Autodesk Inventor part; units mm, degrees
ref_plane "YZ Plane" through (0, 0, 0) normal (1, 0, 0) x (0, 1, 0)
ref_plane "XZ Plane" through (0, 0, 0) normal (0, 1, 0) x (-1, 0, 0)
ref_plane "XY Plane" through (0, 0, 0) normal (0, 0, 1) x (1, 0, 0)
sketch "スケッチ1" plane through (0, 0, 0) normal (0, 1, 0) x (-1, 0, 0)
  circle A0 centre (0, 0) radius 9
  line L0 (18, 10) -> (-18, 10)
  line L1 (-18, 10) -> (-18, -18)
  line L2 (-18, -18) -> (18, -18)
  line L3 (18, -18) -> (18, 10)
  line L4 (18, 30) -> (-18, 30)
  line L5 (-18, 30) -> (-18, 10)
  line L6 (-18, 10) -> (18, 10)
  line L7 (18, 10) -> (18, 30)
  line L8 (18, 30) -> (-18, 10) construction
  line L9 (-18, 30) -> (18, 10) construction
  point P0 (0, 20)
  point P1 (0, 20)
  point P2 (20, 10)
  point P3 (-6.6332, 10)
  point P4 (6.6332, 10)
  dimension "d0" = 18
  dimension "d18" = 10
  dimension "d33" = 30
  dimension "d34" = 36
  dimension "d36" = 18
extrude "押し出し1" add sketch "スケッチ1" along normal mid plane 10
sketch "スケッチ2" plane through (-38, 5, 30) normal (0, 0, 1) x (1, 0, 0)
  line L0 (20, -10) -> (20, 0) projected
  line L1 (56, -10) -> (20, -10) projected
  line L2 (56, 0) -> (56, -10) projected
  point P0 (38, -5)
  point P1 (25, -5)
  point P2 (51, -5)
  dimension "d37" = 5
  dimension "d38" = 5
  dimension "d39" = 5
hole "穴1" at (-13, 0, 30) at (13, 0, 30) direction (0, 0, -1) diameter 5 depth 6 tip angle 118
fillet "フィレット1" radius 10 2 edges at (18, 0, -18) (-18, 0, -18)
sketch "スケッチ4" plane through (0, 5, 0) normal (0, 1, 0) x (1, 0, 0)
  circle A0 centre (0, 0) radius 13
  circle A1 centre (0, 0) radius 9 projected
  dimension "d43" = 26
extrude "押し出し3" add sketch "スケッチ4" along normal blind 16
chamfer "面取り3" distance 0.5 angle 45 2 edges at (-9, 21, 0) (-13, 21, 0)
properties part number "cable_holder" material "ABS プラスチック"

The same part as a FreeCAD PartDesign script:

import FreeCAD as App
import Part
import Sketcher

V = App.Vector
Q = App.Units.Quantity


def edges_at(feature, points):
    """Names of the edges that pass closest to the given points."""
    edges = feature.Shape.Edges
    near = lambda p: min(range(len(edges)), key=lambda i: edges[i].distToShape(Part.Vertex(*p))[0])
    return sorted({f"Edge{near(p) + 1}" for p in points})


def add_polygon(sketch, points):
    """Adds a closed chain of lines whose ends are joined by coincident constraints."""
    first, n = sketch.GeometryCount, len(points)
    for a, b in zip(points, points[1:] + points[:1]):
        sketch.addGeometry(Part.LineSegment(App.Vector(*a, 0), App.Vector(*b, 0)), False)
    for i in range(n):
        sketch.addConstraint(Sketcher.Constraint("Coincident", first + i, 2, first + (i + 1) % n, 1))

doc = App.newDocument("Part")
params = doc.addObject("Spreadsheet::Sheet", "Params")
for row, (alias, value) in enumerate([
    ("sketch1_diameter", "18 mm"),
    ("sketch1_width", "36 mm"),
    ("pad1_length", "10 mm"),
    ("sketch2_diameter", "5 mm"),
    ("hole_diameter", "5 mm"),
    ("hole_depth", "6 mm"),
    ("fillet_radius", "10 mm"),
    ("sketch3_diameter", "26 mm"),
    ("sketch3_diameter2", "18 mm"),
    ("pad2_length", "16 mm"),
    ("chamfer_size", "0.5 mm"),
], start=1):
    params.set(f"A{row}", alias)
    params.set(f"B{row}", "=" + value)
    params.setAlias(f"B{row}", alias)

body = doc.addObject("PartDesign::Body", "Body")

sketch1 = body.newObject("Sketcher::SketchObject", "Sketch")
sketch1.AttachmentSupport = (doc.getObject("XZ_Plane"), [""])
sketch1.MapMode = "FlatFace"
add_polygon(sketch1, [(-18, -18), (-18, 30), (18, 30), (18, -18)])
sketch1.addGeometry(Part.Circle(V(0, 0, 0), V(0, 0, 1), 9), False)
sketch1.addConstraint(Sketcher.Constraint("Vertical", 0))
sketch1.addConstraint(Sketcher.Constraint("Horizontal", 1))
sketch1.addConstraint(Sketcher.Constraint("Vertical", 2))
sketch1.addConstraint(Sketcher.Constraint("Horizontal", 3))
sketch1.addConstraint(Sketcher.Constraint("Coincident", 4, 3, -1, 1))
sketch1.addConstraint(Sketcher.Constraint("Diameter", 4, Q("18 mm")))
sketch1.addConstraint(Sketcher.Constraint("DistanceX", 1, 1, 1, 2, Q("36 mm")))
sketch1.addConstraint(Sketcher.Constraint("DistanceX", 0, 2, -1, 1, Q("18 mm")))
sketch1.addConstraint(Sketcher.Constraint("DistanceY", -1, 1, 0, 2, Q("30 mm")))
sketch1.addConstraint(Sketcher.Constraint("DistanceY", 2, 2, -1, 1, Q("18 mm")))
sketch1.setExpression("Constraints[9]", "Params.sketch1_diameter")
sketch1.setExpression("Constraints[10]", "Params.sketch1_width")
pad1 = body.newObject("PartDesign::Pad", "Pad")
pad1.Profile = sketch1
pad1.setExpression("Length", "Params.pad1_length")
pad1.Midplane = True

sketch2 = body.newObject("Sketcher::SketchObject", "Sketch001")
sketch2.AttachmentSupport = (doc.getObject("XY_Plane"), [""])
sketch2.MapMode = "FlatFace"
sketch2.AttachmentOffset = App.Placement(V(0, 0, 30), App.Rotation())
sketch2.addGeometry(Part.Circle(V(-13, 0, 0), V(0, 0, 1), 2.5), False)
sketch2.addGeometry(Part.Circle(V(13, 0, 0), V(0, 0, 1), 2.5), False)
sketch2.addConstraint(Sketcher.Constraint("Equal", 0, 1))
sketch2.addConstraint(Sketcher.Constraint("Symmetric", 0, 3, 1, 3, -1, 1))
sketch2.addConstraint(Sketcher.Constraint("PointOnObject", 0, 3, -1))
sketch2.addConstraint(Sketcher.Constraint("Diameter", 0, Q("5 mm")))
sketch2.addConstraint(Sketcher.Constraint("DistanceX", 0, 3, -1, 1, Q("13 mm")))
sketch2.setExpression("Constraints[3]", "Params.sketch2_diameter")
doc.recompute()
hole = body.newObject("PartDesign::Hole", "Hole")
hole.Profile = sketch2
hole.ThreadType = "None"
hole.setExpression("Diameter", "Params.hole_diameter")
hole.DepthType = "Dimension"
hole.setExpression("Depth", "Params.hole_depth")
hole.DrillPoint = "Angled"
hole.DrillPointAngle = 118
doc.recompute()

fillet = body.newObject("PartDesign::Fillet", "Fillet")
fillet.Base = (hole, edges_at(hole, [(18, 0, -18), (-18, 0, -18)]))
fillet.setExpression("Radius", "Params.fillet_radius")

sketch3 = body.newObject("Sketcher::SketchObject", "Sketch002")
sketch3.AttachmentSupport = (doc.getObject("XZ_Plane"), [""])
sketch3.MapMode = "FlatFace"
sketch3.AttachmentOffset = App.Placement(V(0, 0, -5), App.Rotation())
sketch3.addGeometry(Part.Circle(V(0, 0, 0), V(0, 0, 1), 13), False)
sketch3.addGeometry(Part.Circle(V(0, 0, 0), V(0, 0, 1), 9), False)
sketch3.addConstraint(Sketcher.Constraint("Coincident", 0, 3, -1, 1))
sketch3.addConstraint(Sketcher.Constraint("Coincident", 1, 3, -1, 1))
sketch3.addConstraint(Sketcher.Constraint("Diameter", 0, Q("26 mm")))
sketch3.addConstraint(Sketcher.Constraint("Diameter", 1, Q("18 mm")))
sketch3.setExpression("Constraints[2]", "Params.sketch3_diameter")
sketch3.setExpression("Constraints[3]", "Params.sketch3_diameter2")
pad2 = body.newObject("PartDesign::Pad", "Pad001")
pad2.Profile = sketch3
pad2.setExpression("Length", "Params.pad2_length")
pad2.Reversed = True
doc.recompute()

chamfer = body.newObject("PartDesign::Chamfer", "Chamfer")
chamfer.Base = (pad2, edges_at(pad2, [(-9, 21, 0), (-13, 21, 0)]))
chamfer.setExpression("Size", "Params.chamfer_size")

doc.recompute()
